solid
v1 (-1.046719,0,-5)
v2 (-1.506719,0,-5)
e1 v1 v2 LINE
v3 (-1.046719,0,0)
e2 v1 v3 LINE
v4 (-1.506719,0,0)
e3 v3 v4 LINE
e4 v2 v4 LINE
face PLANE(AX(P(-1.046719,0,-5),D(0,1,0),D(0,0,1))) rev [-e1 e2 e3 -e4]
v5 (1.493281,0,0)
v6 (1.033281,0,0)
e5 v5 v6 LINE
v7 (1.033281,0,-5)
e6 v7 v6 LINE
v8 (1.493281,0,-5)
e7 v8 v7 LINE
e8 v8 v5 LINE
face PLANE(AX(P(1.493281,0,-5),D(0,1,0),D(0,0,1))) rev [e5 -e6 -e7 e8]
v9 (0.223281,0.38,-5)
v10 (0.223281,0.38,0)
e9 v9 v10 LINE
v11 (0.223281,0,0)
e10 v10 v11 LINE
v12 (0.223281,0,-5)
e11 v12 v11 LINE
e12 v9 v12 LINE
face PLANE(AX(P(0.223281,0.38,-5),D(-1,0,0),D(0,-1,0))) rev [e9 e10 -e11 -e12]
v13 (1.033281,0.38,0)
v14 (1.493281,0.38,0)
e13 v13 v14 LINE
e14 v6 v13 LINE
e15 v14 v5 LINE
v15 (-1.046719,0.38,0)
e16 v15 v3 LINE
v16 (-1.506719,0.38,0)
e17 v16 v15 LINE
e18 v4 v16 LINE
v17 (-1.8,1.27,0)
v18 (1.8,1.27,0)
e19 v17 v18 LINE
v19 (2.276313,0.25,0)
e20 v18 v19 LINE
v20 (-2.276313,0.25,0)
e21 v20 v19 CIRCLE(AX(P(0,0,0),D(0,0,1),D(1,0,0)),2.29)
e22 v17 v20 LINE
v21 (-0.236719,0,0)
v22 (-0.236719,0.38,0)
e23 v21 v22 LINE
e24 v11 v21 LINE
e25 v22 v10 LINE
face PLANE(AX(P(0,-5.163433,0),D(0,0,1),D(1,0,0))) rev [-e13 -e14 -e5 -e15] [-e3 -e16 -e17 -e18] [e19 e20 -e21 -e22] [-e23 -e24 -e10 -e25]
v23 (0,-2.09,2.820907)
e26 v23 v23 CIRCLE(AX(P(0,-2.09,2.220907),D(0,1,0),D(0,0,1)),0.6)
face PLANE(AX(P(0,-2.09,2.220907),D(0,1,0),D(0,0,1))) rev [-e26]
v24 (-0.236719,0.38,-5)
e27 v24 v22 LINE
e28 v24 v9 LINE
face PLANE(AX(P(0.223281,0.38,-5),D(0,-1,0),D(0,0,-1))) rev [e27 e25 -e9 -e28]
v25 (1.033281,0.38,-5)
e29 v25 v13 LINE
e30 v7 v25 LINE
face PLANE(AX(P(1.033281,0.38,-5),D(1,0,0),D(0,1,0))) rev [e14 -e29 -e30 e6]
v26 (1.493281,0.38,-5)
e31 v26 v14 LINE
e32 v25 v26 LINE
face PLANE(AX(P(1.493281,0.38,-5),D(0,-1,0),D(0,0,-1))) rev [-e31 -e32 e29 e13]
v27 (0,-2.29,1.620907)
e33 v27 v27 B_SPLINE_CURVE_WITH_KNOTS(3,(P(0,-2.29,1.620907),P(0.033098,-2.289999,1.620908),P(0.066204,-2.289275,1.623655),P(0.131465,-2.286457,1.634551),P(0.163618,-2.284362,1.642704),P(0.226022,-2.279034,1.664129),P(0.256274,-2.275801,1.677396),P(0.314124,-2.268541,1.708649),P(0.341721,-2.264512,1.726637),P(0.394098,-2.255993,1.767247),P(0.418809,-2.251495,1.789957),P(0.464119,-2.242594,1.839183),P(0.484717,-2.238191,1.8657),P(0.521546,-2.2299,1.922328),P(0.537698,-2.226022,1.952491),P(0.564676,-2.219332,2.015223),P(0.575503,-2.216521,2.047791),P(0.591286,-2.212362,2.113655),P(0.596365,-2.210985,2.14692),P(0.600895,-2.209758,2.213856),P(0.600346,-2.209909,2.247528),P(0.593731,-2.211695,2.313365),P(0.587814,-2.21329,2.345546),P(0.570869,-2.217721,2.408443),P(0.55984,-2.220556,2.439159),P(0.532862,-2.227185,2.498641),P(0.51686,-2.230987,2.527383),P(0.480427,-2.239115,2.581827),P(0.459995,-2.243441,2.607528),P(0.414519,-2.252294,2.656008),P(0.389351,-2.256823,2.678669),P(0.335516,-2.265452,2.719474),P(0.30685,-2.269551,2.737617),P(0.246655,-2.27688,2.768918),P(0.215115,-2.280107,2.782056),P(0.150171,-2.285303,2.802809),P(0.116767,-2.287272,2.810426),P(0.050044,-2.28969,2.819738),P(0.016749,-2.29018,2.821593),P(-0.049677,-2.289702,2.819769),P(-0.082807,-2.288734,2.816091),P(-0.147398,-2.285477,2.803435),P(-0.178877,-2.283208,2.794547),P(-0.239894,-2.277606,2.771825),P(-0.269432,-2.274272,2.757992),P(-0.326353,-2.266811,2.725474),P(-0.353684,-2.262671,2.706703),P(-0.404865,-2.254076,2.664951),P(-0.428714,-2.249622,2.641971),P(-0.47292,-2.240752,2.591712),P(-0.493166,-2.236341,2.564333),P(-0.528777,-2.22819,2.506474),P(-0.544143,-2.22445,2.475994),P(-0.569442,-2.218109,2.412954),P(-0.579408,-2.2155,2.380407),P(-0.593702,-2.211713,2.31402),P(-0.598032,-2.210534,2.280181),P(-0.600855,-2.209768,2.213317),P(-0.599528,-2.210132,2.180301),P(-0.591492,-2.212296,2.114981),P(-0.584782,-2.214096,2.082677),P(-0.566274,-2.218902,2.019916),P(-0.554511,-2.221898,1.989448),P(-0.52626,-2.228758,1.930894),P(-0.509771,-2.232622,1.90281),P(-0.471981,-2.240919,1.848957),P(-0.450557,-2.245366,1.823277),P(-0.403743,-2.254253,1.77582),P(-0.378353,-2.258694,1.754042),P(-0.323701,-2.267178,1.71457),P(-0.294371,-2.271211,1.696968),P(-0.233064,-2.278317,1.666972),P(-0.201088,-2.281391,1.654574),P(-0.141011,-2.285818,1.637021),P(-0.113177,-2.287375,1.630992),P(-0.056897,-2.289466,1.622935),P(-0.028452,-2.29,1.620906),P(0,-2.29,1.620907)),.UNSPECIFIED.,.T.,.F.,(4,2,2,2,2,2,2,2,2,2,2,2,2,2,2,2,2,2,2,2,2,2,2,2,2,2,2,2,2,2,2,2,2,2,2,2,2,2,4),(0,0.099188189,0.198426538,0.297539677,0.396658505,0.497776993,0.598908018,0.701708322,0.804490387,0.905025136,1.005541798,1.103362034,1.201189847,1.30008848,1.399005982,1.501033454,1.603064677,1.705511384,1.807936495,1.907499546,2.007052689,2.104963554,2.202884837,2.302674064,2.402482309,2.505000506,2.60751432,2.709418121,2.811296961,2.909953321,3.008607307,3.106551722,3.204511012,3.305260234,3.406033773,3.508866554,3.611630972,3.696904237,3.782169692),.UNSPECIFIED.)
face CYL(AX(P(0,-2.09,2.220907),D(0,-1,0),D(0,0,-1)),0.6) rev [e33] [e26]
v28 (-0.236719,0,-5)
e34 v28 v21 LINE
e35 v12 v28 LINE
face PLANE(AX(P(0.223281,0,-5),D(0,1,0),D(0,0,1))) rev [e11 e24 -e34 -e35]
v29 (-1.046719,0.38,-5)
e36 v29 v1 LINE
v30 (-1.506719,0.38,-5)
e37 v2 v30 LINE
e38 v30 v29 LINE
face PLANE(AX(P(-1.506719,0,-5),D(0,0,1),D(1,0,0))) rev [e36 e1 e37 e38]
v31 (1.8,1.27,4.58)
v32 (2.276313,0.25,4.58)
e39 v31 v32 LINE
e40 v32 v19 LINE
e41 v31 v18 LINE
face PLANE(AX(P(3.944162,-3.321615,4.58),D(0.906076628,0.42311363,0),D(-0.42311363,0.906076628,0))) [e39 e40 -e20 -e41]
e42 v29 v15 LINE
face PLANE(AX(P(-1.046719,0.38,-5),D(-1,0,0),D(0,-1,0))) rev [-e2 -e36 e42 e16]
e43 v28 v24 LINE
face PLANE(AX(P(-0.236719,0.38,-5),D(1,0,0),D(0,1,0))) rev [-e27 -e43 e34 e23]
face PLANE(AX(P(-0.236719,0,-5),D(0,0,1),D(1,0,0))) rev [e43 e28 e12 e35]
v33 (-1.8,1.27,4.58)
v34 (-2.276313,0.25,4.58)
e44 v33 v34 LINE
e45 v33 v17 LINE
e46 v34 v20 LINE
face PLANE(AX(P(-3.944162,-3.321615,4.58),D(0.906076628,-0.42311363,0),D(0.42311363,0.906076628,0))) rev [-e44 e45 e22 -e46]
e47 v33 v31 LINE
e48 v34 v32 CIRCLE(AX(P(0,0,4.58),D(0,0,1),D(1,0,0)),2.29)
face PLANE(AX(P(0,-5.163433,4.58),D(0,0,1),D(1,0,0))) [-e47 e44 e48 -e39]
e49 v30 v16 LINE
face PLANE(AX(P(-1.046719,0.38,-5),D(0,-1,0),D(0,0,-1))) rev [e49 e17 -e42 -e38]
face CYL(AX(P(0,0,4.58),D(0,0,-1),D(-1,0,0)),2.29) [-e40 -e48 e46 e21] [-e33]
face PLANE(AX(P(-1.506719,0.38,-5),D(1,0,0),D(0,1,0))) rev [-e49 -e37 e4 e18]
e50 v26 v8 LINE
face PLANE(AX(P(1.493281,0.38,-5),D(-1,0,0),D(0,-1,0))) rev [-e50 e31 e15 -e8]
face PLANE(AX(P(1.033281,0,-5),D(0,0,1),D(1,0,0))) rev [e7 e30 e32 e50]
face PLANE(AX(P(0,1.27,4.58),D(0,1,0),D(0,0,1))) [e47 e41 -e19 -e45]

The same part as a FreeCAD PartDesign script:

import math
import FreeCAD as App
import Part
import Sketcher
from FreeCAD import Vector
Q = App.Units.Quantity


def add_polygon(sketch, points):
    """Adds a closed chain of lines whose ends are joined by coincident constraints."""
    first, n = sketch.GeometryCount, len(points)
    for a, b in zip(points, points[1:] + points[:1]):
        sketch.addGeometry(Part.LineSegment(App.Vector(*a, 0), App.Vector(*b, 0)), False)
    for i in range(n):
        sketch.addConstraint(Sketcher.Constraint("Coincident", first + i, 2, first + (i + 1) % n, 1))

doc = App.newDocument("Part")
params = doc.addObject("Spreadsheet::Sheet", "Params")
for row, (alias, value) in enumerate([
    ("sketch1_radius", "2.29 mm"),
    ("sketch1_width", "3.6 mm"),
    ("pad1_length", "4.58 mm"),
    ("sketch2_width", "0.46 mm"),
    ("sketch2_height", "0.38 mm"),
    ("pad2_length", "5 mm"),
    ("sketch3_diameter", "1.2 mm"),
    ("pocket1_length", "0.2 mm"),
], start=1):
    params.set(f"A{row}", alias)
    params.set(f"B{row}", "=" + value)
    params.setAlias(f"B{row}", alias)

body = doc.addObject("PartDesign::Body", "Body")

sketch1 = body.newObject("Sketcher::SketchObject", "Sketch")
sketch1.AttachmentSupport = (doc.getObject("XY_Plane"), [""])
sketch1.MapMode = "FlatFace"
sketch1.addGeometry([
    Part.ArcOfCircle(Part.Circle(Vector(0, 0, 0), Vector(0, 0, 1), 2.3), math.radians(174), math.radians(366)),
    Part.LineSegment(Vector(2.3, 0.2, 0), Vector(1.8, 1.3, 0)),
    Part.LineSegment(Vector(1.8, 1.3, 0), Vector(-1.8, 1.3, 0)),
    Part.LineSegment(Vector(-1.8, 1.3, 0), Vector(-2.3, 0.2, 0)),
], False)
sketch1.addConstraint([
    Sketcher.Constraint("Coincident", 0, 2, 1, 1),
    Sketcher.Constraint("Coincident", 1, 2, 2, 1),
    Sketcher.Constraint("Coincident", 2, 2, 3, 1),
    Sketcher.Constraint("Coincident", 3, 2, 0, 1),
    Sketcher.Constraint("Horizontal", 2),
    Sketcher.Constraint("Coincident", 0, 3, -1, 1),
    Sketcher.Constraint("Horizontal", 0, 2, 3, 2),
    Sketcher.Constraint("Equal", 1, 3),
    Sketcher.Constraint("Radius", 0, Q("2.29 mm")),
    Sketcher.Constraint("DistanceX", 2, 2, 2, 1, Q("3.6 mm")),
    Sketcher.Constraint("DistanceY", -1, 1, 0, 2, Q("0.25 mm")),
    Sketcher.Constraint("DistanceY", -1, 1, 1, 2, Q("1.27 mm")),
])
sketch1.setExpression("Constraints[8]", "Params.sketch1_radius")
sketch1.setExpression("Constraints[9]", "Params.sketch1_width")
pad1 = body.newObject("PartDesign::Pad", "Pad")
pad1.Profile = sketch1
pad1.setExpression("Length", "Params.pad1_length")

sketch2 = body.newObject("Sketcher::SketchObject", "Sketch001")
sketch2.AttachmentSupport = (doc.getObject("XY_Plane"), [""])
sketch2.MapMode = "FlatFace"
add_polygon(sketch2, [(0.22, 0.38), (0.22, 0), (-0.24, 0), (-0.24, 0.38)])
add_polygon(sketch2, [(-1.05, 0.38), (-1.05, 0), (-1.51, 0), (-1.51, 0.38)])
add_polygon(sketch2, [(1.49, 0.38), (1.49, 0), (1.03, 0), (1.03, 0.38)])
sketch2.addConstraint([
    Sketcher.Constraint("Vertical", 0),
    Sketcher.Constraint("Horizontal", 1),
    Sketcher.Constraint("Vertical", 2),
    Sketcher.Constraint("Horizontal", 3),
    Sketcher.Constraint("Vertical", 4),
    Sketcher.Constraint("Horizontal", 5),
    Sketcher.Constraint("Vertical", 6),
    Sketcher.Constraint("Horizontal", 7),
    Sketcher.Constraint("Vertical", 8),
    Sketcher.Constraint("Horizontal", 9),
    Sketcher.Constraint("Vertical", 10),
    Sketcher.Constraint("Horizontal", 11),
    Sketcher.Constraint("PointOnObject", 0, 2, -1),
    Sketcher.Constraint("PointOnObject", 4, 2, -1),
    Sketcher.Constraint("PointOnObject", 8, 2, -1),
    Sketcher.Constraint("Horizontal", 3, 2, 6, 2),
    Sketcher.Constraint("Horizontal", 7, 2, 10, 2),
    Sketcher.Constraint("Equal", 3, 5),
    Sketcher.Constraint("Equal", 7, 9),
    Sketcher.Constraint("DistanceX", 1, 2, 1, 1, Q("0.46 mm")),
    Sketcher.Constraint("DistanceY", 0, 2, 0, 1, Q("0.38 mm")),
    Sketcher.Constraint("DistanceX", 4, 2, 1, 2, Q("0.81 mm")),
    Sketcher.Constraint("DistanceX", 0, 2, 8, 2, Q("1.27 mm")),
    Sketcher.Constraint("DistanceX", -1, 1, 0, 2, Q("0.223281 mm")),
])
sketch2.setExpression("Constraints[31]", "Params.sketch2_width")
sketch2.setExpression("Constraints[32]", "Params.sketch2_height")
pad2 = body.newObject("PartDesign::Pad", "Pad001")
pad2.Profile = sketch2
pad2.setExpression("Length", "Params.pad2_length")
pad2.Reversed = True

sketch3 = body.newObject("Sketcher::SketchObject", "Sketch002")
sketch3.AttachmentSupport = (doc.getObject("XZ_Plane"), [""])
sketch3.MapMode = "FlatFace"
sketch3.AttachmentOffset = App.Placement(Vector(0, 0, 2.29), App.Rotation())
sketch3.addGeometry(Part.Circle(Vector(0, 2.2, 0), Vector(0, 0, 1), 0.6), False)
sketch3.addConstraint([
    Sketcher.Constraint("PointOnObject", 0, 3, -2),
    Sketcher.Constraint("Diameter", 0, Q("1.2 mm")),
    Sketcher.Constraint("DistanceY", -1, 1, 0, 3, Q("2.220907 mm")),
])
sketch3.setExpression("Constraints[1]", "Params.sketch3_diameter")
pocket1 = body.newObject("PartDesign::Pocket", "Pocket")
pocket1.Profile = sketch3
pocket1.setExpression("Length", "Params.pocket1_length")

doc.recompute()
